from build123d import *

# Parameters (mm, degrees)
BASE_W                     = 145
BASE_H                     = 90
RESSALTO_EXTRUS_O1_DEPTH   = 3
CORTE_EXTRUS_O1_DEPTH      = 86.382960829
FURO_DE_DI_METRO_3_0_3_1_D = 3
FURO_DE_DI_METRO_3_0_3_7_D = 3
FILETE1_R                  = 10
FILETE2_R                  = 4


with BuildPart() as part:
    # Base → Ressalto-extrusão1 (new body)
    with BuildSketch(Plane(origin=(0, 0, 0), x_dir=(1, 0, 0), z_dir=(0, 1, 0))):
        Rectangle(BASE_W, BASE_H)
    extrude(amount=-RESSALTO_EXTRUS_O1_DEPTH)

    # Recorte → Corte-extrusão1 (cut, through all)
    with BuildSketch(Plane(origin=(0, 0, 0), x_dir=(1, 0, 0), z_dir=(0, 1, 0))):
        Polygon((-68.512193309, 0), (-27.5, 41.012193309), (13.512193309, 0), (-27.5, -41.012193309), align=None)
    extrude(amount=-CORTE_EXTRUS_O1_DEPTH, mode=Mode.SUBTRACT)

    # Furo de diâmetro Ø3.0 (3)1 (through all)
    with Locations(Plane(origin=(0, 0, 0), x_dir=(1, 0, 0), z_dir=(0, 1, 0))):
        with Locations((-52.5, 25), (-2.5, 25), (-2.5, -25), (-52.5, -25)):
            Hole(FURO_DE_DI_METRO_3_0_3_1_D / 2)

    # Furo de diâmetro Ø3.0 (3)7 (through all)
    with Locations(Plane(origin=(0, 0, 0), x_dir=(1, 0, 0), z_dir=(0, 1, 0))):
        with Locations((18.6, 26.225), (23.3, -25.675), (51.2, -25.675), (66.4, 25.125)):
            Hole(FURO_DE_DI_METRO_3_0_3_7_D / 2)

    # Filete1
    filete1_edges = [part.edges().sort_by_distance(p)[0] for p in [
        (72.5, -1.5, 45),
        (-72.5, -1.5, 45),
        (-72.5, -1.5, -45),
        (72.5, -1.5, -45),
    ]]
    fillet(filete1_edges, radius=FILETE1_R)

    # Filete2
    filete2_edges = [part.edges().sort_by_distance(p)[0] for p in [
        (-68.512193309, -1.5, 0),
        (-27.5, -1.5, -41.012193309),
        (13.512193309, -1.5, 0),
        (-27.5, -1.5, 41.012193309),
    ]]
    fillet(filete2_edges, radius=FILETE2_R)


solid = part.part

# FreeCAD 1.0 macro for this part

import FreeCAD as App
import Part
import Sketcher
from FreeCAD import Vector


def edges_at(feature, points):
    """Names of the edges that pass closest to the given points."""
    edges = feature.Shape.Edges
    near = lambda p: min(range(len(edges)), key=lambda i: edges[i].distToShape(Part.Vertex(*p))[0])
    return sorted({f"Edge{near(p) + 1}" for p in points})

doc = App.newDocument("Part")
body = doc.addObject("PartDesign::Body", "Body")

# Sketch on XZ plane
sketch1 = doc.addObject("Sketcher::SketchObject", "Sketch")
body.addObject(sketch1)
sketch1.AttachmentSupport = (doc.XZ_Plane, [""])
sketch1.MapMode = "FlatFace"
sketch1.addGeometry([
    Part.LineSegment(Vector(-72, -45, 0), Vector(-72, 45, 0)),
    Part.LineSegment(Vector(-72, 45, 0), Vector(72, 45, 0)),
    Part.LineSegment(Vector(72, 45, 0), Vector(72, -45, 0)),
    Part.LineSegment(Vector(72, -45, 0), Vector(-72, -45, 0)),
], False)
sketch1.addConstraint([
    Sketcher.Constraint("Coincident", 0, 2, 1, 1),
    Sketcher.Constraint("Coincident", 1, 2, 2, 1),
    Sketcher.Constraint("Coincident", 2, 2, 3, 1),
    Sketcher.Constraint("Coincident", 3, 2, 0, 1),
    Sketcher.Constraint("Vertical", 0),
    Sketcher.Constraint("Horizontal", 1),
    Sketcher.Constraint("Vertical", 2),
    Sketcher.Constraint("Horizontal", 3),
    Sketcher.Constraint("Symmetric", 0, 2, 2, 2, -1, 1),
    Sketcher.Constraint("DistanceX", 1, 1, 1, 2, 145.0),
    Sketcher.Constraint("DistanceY", 0, 1, 0, 2, 90.0),
])
pad1 = doc.addObject("PartDesign::Pad", "Pad")
body.addObject(pad1)
pad1.Profile = sketch1
pad1.Length = 3

# Sketch on XZ plane
sketch2 = doc.addObject("Sketcher::SketchObject", "Sketch001")
body.addObject(sketch2)
sketch2.AttachmentSupport = (doc.XZ_Plane, [""])
sketch2.MapMode = "FlatFace"
sketch2.addGeometry([
    Part.LineSegment(Vector(-28, -41, 0), Vector(-69, 0, 0)),
    Part.LineSegment(Vector(-69, 0, 0), Vector(-28, 41, 0)),
    Part.LineSegment(Vector(-28, 41, 0), Vector(14, 0, 0)),
    Part.LineSegment(Vector(14, 0, 0), Vector(-28, -41, 0)),
], False)
sketch2.addConstraint([
    Sketcher.Constraint("Coincident", 0, 2, 1, 1),
    Sketcher.Constraint("Coincident", 1, 2, 2, 1),
    Sketcher.Constraint("Coincident", 2, 2, 3, 1),
    Sketcher.Constraint("Coincident", 3, 2, 0, 1),
    Sketcher.Constraint("Symmetric", 1, 2, 3, 2, -1),
    Sketcher.Constraint("PointOnObject", 0, 2, -1),
    Sketcher.Constraint("PointOnObject", 2, 2, -1),
    Sketcher.Constraint("Perpendicular", 0, 1),
    Sketcher.Constraint("Perpendicular", 1, 2),
    Sketcher.Constraint("Distance", 0, 58.0),
    Sketcher.Constraint("DistanceX", 1, 2, -1, 1, 27.5),
])
pocket1 = doc.addObject("PartDesign::Pocket", "Pocket")
body.addObject(pocket1)
pocket1.Profile = sketch2
pocket1.Type = "ThroughAll"
pocket1.Reversed = True

# Sketch on XZ plane
sketch3 = doc.addObject("Sketcher::SketchObject", "Sketch002")
body.addObject(sketch3)
sketch3.AttachmentSupport = (doc.XZ_Plane, [""])
sketch3.MapMode = "FlatFace"
sketch3.addGeometry([
    Part.Circle(Vector(-52.5, -25, 0), Vector(0, 0, 1), 1.5),
    Part.Circle(Vector(-2.5, -25, 0), Vector(0, 0, 1), 1.5),
    Part.Circle(Vector(-2.5, 25, 0), Vector(0, 0, 1), 1.5),
    Part.Circle(Vector(-52.5, 25, 0), Vector(0, 0, 1), 1.5),
], False)
sketch3.addConstraint([
    Sketcher.Constraint("Equal", 0, 1),
    Sketcher.Constraint("Equal", 1, 2),
    Sketcher.Constraint("Equal", 2, 3),
    Sketcher.Constraint("Symmetric", 1, 3, 2, 3, -1),
    Sketcher.Constraint("Symmetric", 0, 3, 3, 3, -1),
    Sketcher.Constraint("Horizontal", 0, 3, 1, 3),
    Sketcher.Constraint("Diameter", 0, 3.0),
    Sketcher.Constraint("DistanceY", 0, 3, -1, 1, 25.0),
    Sketcher.Constraint("DistanceX", 0, 3, 1, 3, 50.0),
    Sketcher.Constraint("DistanceX", 0, 3, -1, 1, 52.5),
])
doc.recompute()
hole = doc.addObject("PartDesign::Hole", "Hole")
body.addObject(hole)
hole.Profile = sketch3
hole.ThreadType = "None"
hole.Diameter = 3
hole.DepthType = "ThroughAll"
hole.Reversed = True

# Sketch on XZ plane
sketch4 = doc.addObject("Sketcher::SketchObject", "Sketch003")
body.addObject(sketch4)
sketch4.AttachmentSupport = (doc.XZ_Plane, [""])
sketch4.MapMode = "FlatFace"
sketch4.addGeometry([
    Part.Circle(Vector(18.6, -26.2, 0), Vector(0, 0, 1), 1.5),
    Part.Circle(Vector(23.3, 25.7, 0), Vector(0, 0, 1), 1.5),
    Part.Circle(Vector(51.2, 25.7, 0), Vector(0, 0, 1), 1.5),
    Part.Circle(Vector(66.4, -25.1, 0), Vector(0, 0, 1), 1.5),
], False)
sketch4.addConstraint([
    Sketcher.Constraint("Equal", 0, 1),
    Sketcher.Constraint("Equal", 1, 2),
    Sketcher.Constraint("Equal", 2, 3),
    Sketcher.Constraint("Horizontal", 1, 3, 2, 3),
    Sketcher.Constraint("Diameter", 0, 3.0),
    Sketcher.Constraint("DistanceX", -1, 1, 0, 3, 18.6),
    Sketcher.Constraint("DistanceX", -1, 1, 1, 3, 23.3),
    Sketcher.Constraint("DistanceX", -1, 1, 2, 3, 51.2),
    Sketcher.Constraint("DistanceX", -1, 1, 3, 3, 66.4),
    Sketcher.Constraint("DistanceY", 0, 3, 1, 3, 51.9),
    Sketcher.Constraint("DistanceY", 0, 3, 3, 3, 1.1),
    Sketcher.Constraint("DistanceY", 0, 3, -1, 1, 26.225),
])
doc.recompute()
hole2 = doc.addObject("PartDesign::Hole", "Hole001")
body.addObject(hole2)
hole2.Profile = sketch4
hole2.ThreadType = "None"
hole2.Diameter = 3
hole2.DepthType = "ThroughAll"
hole2.Reversed = True
doc.recompute()

fillet = doc.addObject("PartDesign::Fillet", "Fillet")
body.addObject(fillet)
fillet.Base = (hole2, edges_at(hole2, [
    (72.5, -1.5, 45),
    (-72.5, -1.5, 45),
    (-72.5, -1.5, -45),
    (72.5, -1.5, -45),
]))
fillet.Radius = 10
doc.recompute()

fillet2 = doc.addObject("PartDesign::Fillet", "Fillet001")
body.addObject(fillet2)
fillet2.Base = (fillet, edges_at(fillet, [
    (-68.512, -1.5, 0),
    (-27.5, -1.5, -41.012),
    (13.512, -1.5, 0),
    (-27.5, -1.5, 41.012),
]))
fillet2.Radius = 4

doc.recompute()
